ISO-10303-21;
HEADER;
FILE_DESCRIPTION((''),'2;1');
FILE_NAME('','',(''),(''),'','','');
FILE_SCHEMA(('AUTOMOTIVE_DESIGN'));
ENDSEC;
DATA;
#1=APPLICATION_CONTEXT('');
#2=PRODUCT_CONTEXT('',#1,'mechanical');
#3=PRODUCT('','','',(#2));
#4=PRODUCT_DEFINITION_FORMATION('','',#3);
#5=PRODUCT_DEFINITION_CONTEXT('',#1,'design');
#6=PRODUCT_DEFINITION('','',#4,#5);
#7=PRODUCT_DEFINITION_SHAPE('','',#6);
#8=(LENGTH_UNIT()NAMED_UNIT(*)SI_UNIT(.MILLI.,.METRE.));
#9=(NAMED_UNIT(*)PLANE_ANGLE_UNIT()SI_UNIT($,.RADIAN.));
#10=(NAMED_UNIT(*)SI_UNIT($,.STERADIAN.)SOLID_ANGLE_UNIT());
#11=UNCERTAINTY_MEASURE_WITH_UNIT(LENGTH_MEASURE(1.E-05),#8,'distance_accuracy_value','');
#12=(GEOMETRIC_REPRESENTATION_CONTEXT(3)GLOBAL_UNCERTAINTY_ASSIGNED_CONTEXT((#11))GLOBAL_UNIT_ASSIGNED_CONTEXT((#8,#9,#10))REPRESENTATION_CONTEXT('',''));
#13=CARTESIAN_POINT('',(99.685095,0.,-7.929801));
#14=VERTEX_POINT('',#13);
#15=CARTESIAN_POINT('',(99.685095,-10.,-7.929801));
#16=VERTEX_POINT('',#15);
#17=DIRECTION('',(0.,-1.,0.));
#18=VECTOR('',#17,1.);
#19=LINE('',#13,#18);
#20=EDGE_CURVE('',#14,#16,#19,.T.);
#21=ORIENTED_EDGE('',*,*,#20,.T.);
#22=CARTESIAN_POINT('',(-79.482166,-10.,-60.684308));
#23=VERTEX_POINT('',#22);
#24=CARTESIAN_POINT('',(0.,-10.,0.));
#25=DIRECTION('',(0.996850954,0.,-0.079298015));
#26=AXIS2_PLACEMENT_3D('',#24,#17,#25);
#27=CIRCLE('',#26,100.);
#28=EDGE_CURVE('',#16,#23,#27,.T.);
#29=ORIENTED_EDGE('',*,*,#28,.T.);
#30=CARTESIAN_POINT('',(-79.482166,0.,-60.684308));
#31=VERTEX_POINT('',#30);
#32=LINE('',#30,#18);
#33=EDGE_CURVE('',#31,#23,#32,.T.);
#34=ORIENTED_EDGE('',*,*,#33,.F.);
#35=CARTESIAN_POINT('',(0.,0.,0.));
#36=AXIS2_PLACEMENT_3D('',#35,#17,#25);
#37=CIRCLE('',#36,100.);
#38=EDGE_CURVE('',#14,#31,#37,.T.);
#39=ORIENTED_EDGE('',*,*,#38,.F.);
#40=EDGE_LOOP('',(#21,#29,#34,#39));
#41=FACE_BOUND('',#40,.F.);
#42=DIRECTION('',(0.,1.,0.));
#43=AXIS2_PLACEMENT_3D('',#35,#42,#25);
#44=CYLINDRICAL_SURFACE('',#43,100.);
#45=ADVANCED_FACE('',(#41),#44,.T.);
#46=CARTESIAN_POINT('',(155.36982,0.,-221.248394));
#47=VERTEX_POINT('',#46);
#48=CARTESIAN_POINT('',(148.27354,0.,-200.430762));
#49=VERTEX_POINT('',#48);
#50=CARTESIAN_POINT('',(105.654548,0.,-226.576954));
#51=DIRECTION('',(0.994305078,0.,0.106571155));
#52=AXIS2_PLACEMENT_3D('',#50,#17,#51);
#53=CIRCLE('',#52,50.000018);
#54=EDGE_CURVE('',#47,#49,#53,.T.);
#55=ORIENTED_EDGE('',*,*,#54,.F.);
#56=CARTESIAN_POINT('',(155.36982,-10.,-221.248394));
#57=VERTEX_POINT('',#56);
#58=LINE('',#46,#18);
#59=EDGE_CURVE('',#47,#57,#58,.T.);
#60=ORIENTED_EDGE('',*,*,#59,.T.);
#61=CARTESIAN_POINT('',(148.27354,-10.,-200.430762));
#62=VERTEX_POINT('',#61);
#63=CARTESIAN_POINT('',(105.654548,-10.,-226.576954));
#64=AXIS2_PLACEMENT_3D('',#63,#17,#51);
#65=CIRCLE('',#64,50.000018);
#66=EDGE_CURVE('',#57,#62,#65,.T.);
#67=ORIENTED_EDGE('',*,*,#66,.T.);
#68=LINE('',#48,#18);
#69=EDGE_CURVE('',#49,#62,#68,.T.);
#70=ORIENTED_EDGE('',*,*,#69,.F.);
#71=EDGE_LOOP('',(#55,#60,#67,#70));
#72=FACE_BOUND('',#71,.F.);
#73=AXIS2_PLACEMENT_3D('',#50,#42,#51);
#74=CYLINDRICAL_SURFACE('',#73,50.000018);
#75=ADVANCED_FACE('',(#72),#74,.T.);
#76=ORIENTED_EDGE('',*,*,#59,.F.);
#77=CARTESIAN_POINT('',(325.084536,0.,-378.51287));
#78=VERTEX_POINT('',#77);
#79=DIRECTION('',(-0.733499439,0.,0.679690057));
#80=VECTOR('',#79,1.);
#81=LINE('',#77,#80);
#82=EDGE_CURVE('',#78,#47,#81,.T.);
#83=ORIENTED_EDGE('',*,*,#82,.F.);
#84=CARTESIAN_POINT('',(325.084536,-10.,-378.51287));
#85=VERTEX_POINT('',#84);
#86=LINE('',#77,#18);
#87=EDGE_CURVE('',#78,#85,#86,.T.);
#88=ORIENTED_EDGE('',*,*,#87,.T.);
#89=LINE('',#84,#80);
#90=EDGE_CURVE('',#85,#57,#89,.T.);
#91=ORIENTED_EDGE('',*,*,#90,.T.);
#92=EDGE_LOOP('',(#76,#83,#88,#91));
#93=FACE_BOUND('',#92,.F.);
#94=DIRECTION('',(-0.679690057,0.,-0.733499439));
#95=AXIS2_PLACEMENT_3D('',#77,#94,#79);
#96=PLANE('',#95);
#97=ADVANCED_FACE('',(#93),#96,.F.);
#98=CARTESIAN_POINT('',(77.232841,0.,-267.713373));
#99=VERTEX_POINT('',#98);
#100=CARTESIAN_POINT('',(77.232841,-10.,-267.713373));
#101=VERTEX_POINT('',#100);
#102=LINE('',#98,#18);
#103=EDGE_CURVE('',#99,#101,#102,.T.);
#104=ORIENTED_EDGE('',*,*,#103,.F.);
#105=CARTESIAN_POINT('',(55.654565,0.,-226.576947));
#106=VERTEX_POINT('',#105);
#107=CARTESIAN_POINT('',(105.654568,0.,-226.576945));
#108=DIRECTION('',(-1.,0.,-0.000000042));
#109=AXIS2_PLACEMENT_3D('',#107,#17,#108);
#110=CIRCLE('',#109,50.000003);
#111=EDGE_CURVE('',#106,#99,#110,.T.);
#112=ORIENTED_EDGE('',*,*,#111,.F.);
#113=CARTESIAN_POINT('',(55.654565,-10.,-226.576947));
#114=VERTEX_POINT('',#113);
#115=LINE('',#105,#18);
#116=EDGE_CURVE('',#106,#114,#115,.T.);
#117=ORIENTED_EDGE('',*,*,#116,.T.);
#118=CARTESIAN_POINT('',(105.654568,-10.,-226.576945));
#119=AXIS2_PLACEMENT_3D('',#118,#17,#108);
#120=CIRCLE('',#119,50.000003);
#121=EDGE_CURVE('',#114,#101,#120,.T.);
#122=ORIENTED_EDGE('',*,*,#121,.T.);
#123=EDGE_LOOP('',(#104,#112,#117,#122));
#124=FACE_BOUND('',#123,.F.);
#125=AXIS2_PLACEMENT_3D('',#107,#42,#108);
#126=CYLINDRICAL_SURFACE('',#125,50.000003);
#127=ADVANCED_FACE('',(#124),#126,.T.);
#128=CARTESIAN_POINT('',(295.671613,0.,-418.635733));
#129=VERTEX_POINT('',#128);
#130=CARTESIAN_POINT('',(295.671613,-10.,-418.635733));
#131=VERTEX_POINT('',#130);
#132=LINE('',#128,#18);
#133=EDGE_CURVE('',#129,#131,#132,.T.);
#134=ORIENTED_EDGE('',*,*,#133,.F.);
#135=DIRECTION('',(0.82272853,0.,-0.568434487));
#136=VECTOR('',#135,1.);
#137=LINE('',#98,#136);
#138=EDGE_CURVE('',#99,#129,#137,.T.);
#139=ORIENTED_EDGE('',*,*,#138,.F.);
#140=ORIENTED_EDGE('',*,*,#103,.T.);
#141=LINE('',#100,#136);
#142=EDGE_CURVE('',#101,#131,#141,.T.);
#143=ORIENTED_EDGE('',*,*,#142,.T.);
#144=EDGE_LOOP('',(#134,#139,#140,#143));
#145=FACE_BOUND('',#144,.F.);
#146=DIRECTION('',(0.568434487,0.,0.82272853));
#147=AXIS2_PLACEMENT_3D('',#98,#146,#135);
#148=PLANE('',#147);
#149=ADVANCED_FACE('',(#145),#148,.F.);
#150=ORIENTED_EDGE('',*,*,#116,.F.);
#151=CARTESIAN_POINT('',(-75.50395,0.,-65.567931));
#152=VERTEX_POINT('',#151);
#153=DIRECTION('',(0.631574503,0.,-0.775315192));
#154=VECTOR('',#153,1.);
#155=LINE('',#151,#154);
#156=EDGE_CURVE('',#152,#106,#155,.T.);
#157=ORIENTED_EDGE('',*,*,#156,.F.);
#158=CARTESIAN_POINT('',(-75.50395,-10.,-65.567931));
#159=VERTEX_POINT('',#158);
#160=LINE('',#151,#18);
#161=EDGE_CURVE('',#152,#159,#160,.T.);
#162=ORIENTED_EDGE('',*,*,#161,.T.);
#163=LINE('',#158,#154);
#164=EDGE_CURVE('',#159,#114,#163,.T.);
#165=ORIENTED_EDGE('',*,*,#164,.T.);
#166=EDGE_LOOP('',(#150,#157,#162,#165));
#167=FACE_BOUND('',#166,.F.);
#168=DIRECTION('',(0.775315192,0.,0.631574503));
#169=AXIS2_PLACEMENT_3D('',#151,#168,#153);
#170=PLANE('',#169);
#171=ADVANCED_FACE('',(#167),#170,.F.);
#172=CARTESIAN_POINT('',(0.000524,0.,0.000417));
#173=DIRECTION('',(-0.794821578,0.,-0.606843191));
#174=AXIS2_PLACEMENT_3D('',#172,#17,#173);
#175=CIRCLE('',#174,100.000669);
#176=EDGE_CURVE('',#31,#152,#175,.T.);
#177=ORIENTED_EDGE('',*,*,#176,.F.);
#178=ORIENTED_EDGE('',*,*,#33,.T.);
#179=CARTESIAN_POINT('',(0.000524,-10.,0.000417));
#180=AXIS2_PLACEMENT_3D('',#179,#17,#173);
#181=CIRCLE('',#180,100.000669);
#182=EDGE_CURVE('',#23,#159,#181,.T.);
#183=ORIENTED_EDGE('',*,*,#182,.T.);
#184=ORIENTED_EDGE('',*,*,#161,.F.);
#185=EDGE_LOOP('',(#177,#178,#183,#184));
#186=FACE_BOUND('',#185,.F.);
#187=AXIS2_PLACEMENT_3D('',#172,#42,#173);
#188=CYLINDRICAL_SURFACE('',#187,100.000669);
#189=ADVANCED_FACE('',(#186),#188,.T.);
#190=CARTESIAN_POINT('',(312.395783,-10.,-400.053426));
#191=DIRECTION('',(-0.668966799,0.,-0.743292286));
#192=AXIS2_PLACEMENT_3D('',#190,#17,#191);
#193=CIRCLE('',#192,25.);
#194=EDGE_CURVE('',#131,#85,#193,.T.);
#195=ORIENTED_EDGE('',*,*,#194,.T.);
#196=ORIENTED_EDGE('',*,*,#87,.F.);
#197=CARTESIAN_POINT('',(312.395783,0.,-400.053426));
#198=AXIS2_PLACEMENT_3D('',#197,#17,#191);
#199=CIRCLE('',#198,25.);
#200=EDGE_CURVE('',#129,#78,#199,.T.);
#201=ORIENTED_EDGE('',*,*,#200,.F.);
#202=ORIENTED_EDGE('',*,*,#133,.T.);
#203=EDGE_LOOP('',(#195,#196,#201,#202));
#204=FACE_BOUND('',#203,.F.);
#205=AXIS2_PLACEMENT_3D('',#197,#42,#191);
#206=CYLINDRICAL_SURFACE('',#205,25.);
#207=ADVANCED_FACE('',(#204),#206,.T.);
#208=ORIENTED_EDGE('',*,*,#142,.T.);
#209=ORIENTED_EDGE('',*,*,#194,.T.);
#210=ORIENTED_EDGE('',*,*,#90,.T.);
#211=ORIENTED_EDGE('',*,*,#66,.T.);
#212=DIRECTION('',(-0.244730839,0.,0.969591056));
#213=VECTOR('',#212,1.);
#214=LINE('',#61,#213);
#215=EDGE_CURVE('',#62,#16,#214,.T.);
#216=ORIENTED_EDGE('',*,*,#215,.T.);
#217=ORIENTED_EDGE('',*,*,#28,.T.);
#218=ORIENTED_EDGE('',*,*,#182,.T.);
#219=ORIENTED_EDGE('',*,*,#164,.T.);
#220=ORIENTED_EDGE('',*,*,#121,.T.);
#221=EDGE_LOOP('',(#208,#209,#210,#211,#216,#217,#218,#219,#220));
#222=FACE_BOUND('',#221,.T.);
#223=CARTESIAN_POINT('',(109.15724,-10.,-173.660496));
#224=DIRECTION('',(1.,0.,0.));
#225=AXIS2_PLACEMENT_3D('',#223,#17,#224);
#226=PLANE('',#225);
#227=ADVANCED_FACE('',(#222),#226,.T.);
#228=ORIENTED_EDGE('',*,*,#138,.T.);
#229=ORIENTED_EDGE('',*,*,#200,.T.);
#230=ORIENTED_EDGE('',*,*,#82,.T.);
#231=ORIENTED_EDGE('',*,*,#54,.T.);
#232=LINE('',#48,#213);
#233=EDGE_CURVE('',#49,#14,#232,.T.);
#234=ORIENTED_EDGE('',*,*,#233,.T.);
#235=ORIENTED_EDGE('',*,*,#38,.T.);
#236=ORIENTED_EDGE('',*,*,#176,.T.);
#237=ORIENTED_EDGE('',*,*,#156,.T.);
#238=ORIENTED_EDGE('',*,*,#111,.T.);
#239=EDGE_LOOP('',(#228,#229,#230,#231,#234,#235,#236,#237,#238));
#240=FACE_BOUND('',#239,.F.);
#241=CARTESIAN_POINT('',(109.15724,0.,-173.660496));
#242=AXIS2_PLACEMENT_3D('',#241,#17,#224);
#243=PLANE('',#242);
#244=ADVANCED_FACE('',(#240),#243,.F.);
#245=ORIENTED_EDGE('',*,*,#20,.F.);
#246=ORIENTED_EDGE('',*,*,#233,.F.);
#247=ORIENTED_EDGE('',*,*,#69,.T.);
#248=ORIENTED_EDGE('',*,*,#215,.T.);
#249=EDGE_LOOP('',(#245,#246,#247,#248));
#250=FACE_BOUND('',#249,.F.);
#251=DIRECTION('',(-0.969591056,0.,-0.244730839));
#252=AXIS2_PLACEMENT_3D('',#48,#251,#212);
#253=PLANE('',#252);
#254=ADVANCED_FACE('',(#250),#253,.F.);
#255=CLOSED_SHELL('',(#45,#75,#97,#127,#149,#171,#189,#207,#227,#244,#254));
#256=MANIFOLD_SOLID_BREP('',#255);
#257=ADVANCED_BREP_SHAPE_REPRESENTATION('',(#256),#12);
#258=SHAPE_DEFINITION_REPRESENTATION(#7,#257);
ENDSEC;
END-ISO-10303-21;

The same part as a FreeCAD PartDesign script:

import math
import FreeCAD as App
import Part
import Sketcher
Q = App.Units.Quantity

doc = App.newDocument("Part")
body = doc.addObject("PartDesign::Body", "Body")

# Sketch on XZ plane
sketch1 = body.newObject("Sketcher::SketchObject", "Sketch")
sketch1.AttachmentSupport = (doc.getObject("XZ_Plane"), [""])
sketch1.MapMode = "FlatFace"
sketch1.addGeometry([
    Part.LineSegment(App.Vector(148.27354, -200.430762, 0), App.Vector(99.685095, -7.929801, 0)),  # 0
    Part.ArcOfCircle(Part.Circle(App.Vector(0, 0, 0), App.Vector(0, 0, 1), 100), math.radians(-4.548217), math.radians(217.361586)),  # 1
    Part.ArcOfCircle(Part.Circle(App.Vector(0.000524, 0.000417, 0), App.Vector(0, 0, 1), 100.000669), math.radians(-142.638407), math.radians(-139.028837)),  # 2
    Part.LineSegment(App.Vector(-75.50395, -65.567931, 0), App.Vector(55.654565, -226.576947, 0)),  # 3
    Part.ArcOfCircle(Part.Circle(App.Vector(105.654568, -226.576945, 0), App.Vector(0, 0, 1), 50.000003), math.radians(-179.999998), math.radians(-124.641131)),  # 4
    Part.LineSegment(App.Vector(77.232841, -267.713373, 0), App.Vector(295.671613, -418.635733, 0)),  # 5
    Part.ArcOfCircle(Part.Circle(App.Vector(312.395783, -400.053426, 0), App.Vector(0, 0, 1), 25), math.radians(-131.987372), math.radians(59.499218)),  # 6
    Part.LineSegment(App.Vector(325.084536, -378.51287, 0), App.Vector(155.36982, -221.248394, 0)),  # 7
    Part.ArcOfCircle(Part.Circle(App.Vector(105.654548, -226.576954, 0), App.Vector(0, 0, 1), 50.000018), math.radians(6.117695), math.radians(31.528569)),  # 8
], False)
sketch1.addConstraint([
    Sketcher.Constraint("Coincident", 0, 2, 1, 1),
    Sketcher.Constraint("Coincident", 1, 2, 2, 1),
    Sketcher.Constraint("Coincident", 2, 2, 3, 1),
    Sketcher.Constraint("Coincident", 3, 2, 4, 1),
    Sketcher.Constraint("Coincident", 4, 2, 5, 1),
    Sketcher.Constraint("Coincident", 5, 2, 6, 1),
    Sketcher.Constraint("Coincident", 6, 2, 7, 1),
    Sketcher.Constraint("Coincident", 7, 2, 8, 1),
    Sketcher.Constraint("Coincident", 8, 2, 0, 1),
    Sketcher.Constraint("Coincident", 1, 3, -1, 1),
    Sketcher.Constraint("Radius", 1, Q("100 mm")),
    Sketcher.Constraint("Radius", 6, Q("25 mm")),
    Sketcher.Constraint("Radius", 2, Q("100.000669 mm")),
    Sketcher.Constraint("Radius", 8, Q("50.000018 mm")),
    Sketcher.Constraint("Radius", 4, Q("50.000003 mm")),
    Sketcher.Constraint("Distance", 0, Q("198.538301 mm")),
    Sketcher.Constraint("DistanceY", 0, 2, -1, 1, Q("7.929801 mm")),
    Sketcher.Constraint("DistanceX", 4, 2, 8, 2, Q("71.040699 mm")),
    Sketcher.Constraint("Distance", 3, Q("207.66911 mm")),
    Sketcher.Constraint("Distance", 7, Q("231.37675 mm")),
    Sketcher.Constraint("DistanceY", 1, 2, -1, 1, Q("60.684308 mm")),
    Sketcher.Constraint("DistanceX", 2, 2, -1, 1, Q("75.50395 mm")),
    Sketcher.Constraint("DistanceX", -1, 1, 4, 2, Q("77.232841 mm")),
    Sketcher.Constraint("DistanceY", 6, 2, -1, 1, Q("378.51287 mm")),
    Sketcher.Constraint("DistanceX", -1, 1, 7, 2, Q("155.36982 mm")),
    Sketcher.Constraint("DistanceY", 6, 3, 4, 3, Q("173.476481 mm")),
    Sketcher.Constraint("DistanceX", 2, 3, 6, 3, Q("312.395259 mm")),
    Sketcher.Constraint("DistanceX", 1, 3, 8, 3, Q("105.654548 mm")),
    Sketcher.Constraint("DistanceY", 8, 3, 2, 3, Q("226.577371 mm")),
    Sketcher.Constraint("DistanceX", 1, 2, 3, 2, Q("135.136731 mm")),
    Sketcher.Constraint("DistanceX", 5, 2, 6, 3, Q("16.72417 mm")),
])
pad1 = body.newObject("PartDesign::Pad", "Pad")
pad1.Profile = sketch1
pad1.Length = 10

doc.recompute()
